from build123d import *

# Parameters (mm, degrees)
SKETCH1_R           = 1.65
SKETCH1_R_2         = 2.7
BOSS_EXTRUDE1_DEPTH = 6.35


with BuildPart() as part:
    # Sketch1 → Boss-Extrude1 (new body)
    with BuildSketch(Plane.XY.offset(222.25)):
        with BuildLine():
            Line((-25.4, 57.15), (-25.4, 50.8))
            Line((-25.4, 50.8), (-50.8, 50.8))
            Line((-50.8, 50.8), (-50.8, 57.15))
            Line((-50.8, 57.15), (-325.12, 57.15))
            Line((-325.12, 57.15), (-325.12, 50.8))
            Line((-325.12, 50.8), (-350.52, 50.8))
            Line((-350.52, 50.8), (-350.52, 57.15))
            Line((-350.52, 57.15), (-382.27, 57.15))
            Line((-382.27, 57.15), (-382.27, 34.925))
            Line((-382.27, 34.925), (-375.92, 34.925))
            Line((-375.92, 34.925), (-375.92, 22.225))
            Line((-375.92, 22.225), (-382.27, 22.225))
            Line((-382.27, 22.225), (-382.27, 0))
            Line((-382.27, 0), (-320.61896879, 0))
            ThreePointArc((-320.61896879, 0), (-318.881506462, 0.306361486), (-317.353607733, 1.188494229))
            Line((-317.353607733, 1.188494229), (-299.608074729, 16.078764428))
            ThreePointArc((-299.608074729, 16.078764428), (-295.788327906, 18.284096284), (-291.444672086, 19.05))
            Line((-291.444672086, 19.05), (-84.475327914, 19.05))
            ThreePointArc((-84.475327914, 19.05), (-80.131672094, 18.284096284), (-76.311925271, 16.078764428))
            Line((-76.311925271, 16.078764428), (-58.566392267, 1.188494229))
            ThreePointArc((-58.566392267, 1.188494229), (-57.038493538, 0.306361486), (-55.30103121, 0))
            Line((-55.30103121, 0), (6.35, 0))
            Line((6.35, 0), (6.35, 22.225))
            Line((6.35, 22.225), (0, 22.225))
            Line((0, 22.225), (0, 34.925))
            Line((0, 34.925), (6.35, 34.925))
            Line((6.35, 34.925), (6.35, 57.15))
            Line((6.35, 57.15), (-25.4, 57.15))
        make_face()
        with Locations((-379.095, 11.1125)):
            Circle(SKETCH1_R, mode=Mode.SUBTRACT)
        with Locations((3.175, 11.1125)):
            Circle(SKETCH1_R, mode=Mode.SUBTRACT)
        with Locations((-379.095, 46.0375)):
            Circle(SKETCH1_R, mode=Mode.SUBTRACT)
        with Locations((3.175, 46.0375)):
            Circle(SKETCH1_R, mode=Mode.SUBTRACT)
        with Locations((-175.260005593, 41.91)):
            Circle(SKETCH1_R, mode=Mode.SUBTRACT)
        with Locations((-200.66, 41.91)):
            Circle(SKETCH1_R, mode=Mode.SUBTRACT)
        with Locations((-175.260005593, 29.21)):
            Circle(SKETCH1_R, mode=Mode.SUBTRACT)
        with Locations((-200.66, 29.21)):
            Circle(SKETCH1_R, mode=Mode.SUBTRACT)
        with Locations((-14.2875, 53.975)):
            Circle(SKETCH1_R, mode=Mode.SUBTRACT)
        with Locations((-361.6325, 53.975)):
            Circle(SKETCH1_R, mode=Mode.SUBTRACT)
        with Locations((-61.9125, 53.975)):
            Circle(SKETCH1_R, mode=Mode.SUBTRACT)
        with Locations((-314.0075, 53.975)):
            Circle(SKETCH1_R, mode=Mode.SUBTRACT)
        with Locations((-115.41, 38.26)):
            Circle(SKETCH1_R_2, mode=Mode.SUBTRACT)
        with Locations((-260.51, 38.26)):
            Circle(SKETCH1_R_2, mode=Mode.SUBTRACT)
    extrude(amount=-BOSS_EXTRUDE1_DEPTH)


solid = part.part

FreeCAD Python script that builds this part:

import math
import FreeCAD as App
import Part
import Sketcher

V = App.Vector
Q = App.Units.Quantity

doc = App.newDocument("Part")
body = doc.addObject("PartDesign::Body", "Body")

sketch1 = body.newObject("Sketcher::SketchObject", "Sketch")
sketch1.AttachmentSupport = (doc.getObject("XY_Plane"), [""])
sketch1.MapMode = "FlatFace"
sketch1.AttachmentOffset = App.Placement(V(0, 0, 8.75 * 25.4), App.Rotation())
sketch1.addGeometry(Part.LineSegment(V(-25.4, 57.1, 0), V(-25.4, 50.8, 0)), False)
sketch1.addGeometry(Part.LineSegment(V(-25.4, 50.8, 0), V(-50.8, 50.8, 0)), False)
sketch1.addGeometry(Part.LineSegment(V(-50.8, 50.8, 0), V(-50.8, 57.1, 0)), False)
sketch1.addGeometry(Part.LineSegment(V(-50.8, 57.1, 0), V(-325.1, 57.1, 0)), False)
sketch1.addGeometry(Part.LineSegment(V(-325.1, 57.1, 0), V(-325.1, 50.8, 0)), False)
sketch1.addGeometry(Part.LineSegment(V(-325.1, 50.8, 0), V(-350.5, 50.8, 0)), False)
sketch1.addGeometry(Part.LineSegment(V(-350.5, 50.8, 0), V(-350.5, 57.1, 0)), False)
sketch1.addGeometry(Part.LineSegment(V(-350.5, 57.1, 0), V(-382.3, 57.1, 0)), False)
sketch1.addGeometry(Part.LineSegment(V(-382.3, 57.1, 0), V(-382.3, 34.9, 0)), False)
sketch1.addGeometry(Part.LineSegment(V(-382.3, 34.9, 0), V(-375.9, 34.9, 0)), False)
sketch1.addGeometry(Part.LineSegment(V(-375.9, 34.9, 0), V(-375.9, 22.2, 0)), False)
sketch1.addGeometry(Part.LineSegment(V(-375.9, 22.2, 0), V(-382.3, 22.2, 0)), False)
sketch1.addGeometry(Part.LineSegment(V(-382.3, 22.2, 0), V(-382.3, 0, 0)), False)
sketch1.addGeometry(Part.LineSegment(V(-382.3, 0, 0), V(-320.6, 0, 0)), False)
sketch1.addGeometry(Part.ArcOfCircle(Part.Circle(V(-320.6, 5.1, 0), V(0, 0, 1), 5.1), math.radians(-90), math.radians(-50)), False)
sketch1.addGeometry(Part.LineSegment(V(-317.4, 1.2, 0), V(-299.6, 16.1, 0)), False)
sketch1.addGeometry(Part.ArcOfCircle(Part.Circle(V(-291.4, 6.3, 0), V(0, 0, 1), 12.7), math.radians(90), math.radians(130)), False)
sketch1.addGeometry(Part.LineSegment(V(-291.4, 19.1, 0), V(-84.5, 19.1, 0)), False)
sketch1.addGeometry(Part.ArcOfCircle(Part.Circle(V(-84.5, 6.3, 0), V(0, 0, 1), 12.7), math.radians(50), math.radians(90)), False)
sketch1.addGeometry(Part.LineSegment(V(-76.3, 16.1, 0), V(-58.6, 1.2, 0)), False)
sketch1.addGeometry(Part.ArcOfCircle(Part.Circle(V(-55.3, 5.1, 0), V(0, 0, 1), 5.1), math.radians(-130), math.radians(-90)), False)
sketch1.addGeometry(Part.LineSegment(V(-55.3, 0, 0), V(6.3, 0, 0)), False)
sketch1.addGeometry(Part.LineSegment(V(6.3, 0, 0), V(6.3, 22.2, 0)), False)
sketch1.addGeometry(Part.LineSegment(V(6.3, 22.2, 0), V(0, 22.2, 0)), False)
sketch1.addGeometry(Part.LineSegment(V(0, 22.2, 0), V(0, 34.9, 0)), False)
sketch1.addGeometry(Part.LineSegment(V(0, 34.9, 0), V(6.3, 34.9, 0)), False)
sketch1.addGeometry(Part.LineSegment(V(6.3, 34.9, 0), V(6.3, 57.1, 0)), False)
sketch1.addGeometry(Part.LineSegment(V(6.3, 57.1, 0), V(-25.4, 57.1, 0)), False)
sketch1.addGeometry(Part.Circle(V(-379.1, 11.1, 0), V(0, 0, 1), 1.6), False)
sketch1.addGeometry(Part.Circle(V(-200.7, 29.2, 0), V(0, 0, 1), 1.6), False)
sketch1.addGeometry(Part.Circle(V(3.2, 11.1, 0), V(0, 0, 1), 1.6), False)
sketch1.addGeometry(Part.Circle(V(-175.3, 29.2, 0), V(0, 0, 1), 1.6), False)
sketch1.addGeometry(Part.Circle(V(-260.5, 38.3, 0), V(0, 0, 1), 2.7), False)
sketch1.addGeometry(Part.Circle(V(-200.7, 41.9, 0), V(0, 0, 1), 1.6), False)
sketch1.addGeometry(Part.Circle(V(-379.1, 46, 0), V(0, 0, 1), 1.6), False)
sketch1.addGeometry(Part.Circle(V(-361.6, 54, 0), V(0, 0, 1), 1.6), False)
sketch1.addGeometry(Part.Circle(V(-314, 54, 0), V(0, 0, 1), 1.6), False)
sketch1.addGeometry(Part.Circle(V(-115.4, 38.3, 0), V(0, 0, 1), 2.7), False)
sketch1.addGeometry(Part.Circle(V(-175.3, 41.9, 0), V(0, 0, 1), 1.6), False)
sketch1.addGeometry(Part.Circle(V(3.2, 46, 0), V(0, 0, 1), 1.6), False)
sketch1.addGeometry(Part.Circle(V(-61.9, 54, 0), V(0, 0, 1), 1.6), False)
sketch1.addGeometry(Part.Circle(V(-14.3, 54, 0), V(0, 0, 1), 1.6), False)
sketch1.addConstraint(Sketcher.Constraint("Coincident", 0, 2, 1, 1))
sketch1.addConstraint(Sketcher.Constraint("Coincident", 1, 2, 2, 1))
sketch1.addConstraint(Sketcher.Constraint("Coincident", 2, 2, 3, 1))
sketch1.addConstraint(Sketcher.Constraint("Coincident", 3, 2, 4, 1))
sketch1.addConstraint(Sketcher.Constraint("Coincident", 4, 2, 5, 1))
sketch1.addConstraint(Sketcher.Constraint("Coincident", 5, 2, 6, 1))
sketch1.addConstraint(Sketcher.Constraint("Coincident", 6, 2, 7, 1))
sketch1.addConstraint(Sketcher.Constraint("Coincident", 7, 2, 8, 1))
sketch1.addConstraint(Sketcher.Constraint("Coincident", 8, 2, 9, 1))
sketch1.addConstraint(Sketcher.Constraint("Coincident", 9, 2, 10, 1))
sketch1.addConstraint(Sketcher.Constraint("Coincident", 10, 2, 11, 1))
sketch1.addConstraint(Sketcher.Constraint("Coincident", 11, 2, 12, 1))
sketch1.addConstraint(Sketcher.Constraint("Coincident", 12, 2, 13, 1))
sketch1.addConstraint(Sketcher.Constraint("Tangent", 13, 2, 14, 1))
sketch1.addConstraint(Sketcher.Constraint("Tangent", 14, 2, 15, 1))
sketch1.addConstraint(Sketcher.Constraint("Tangent", 15, 2, 16, 2))
sketch1.addConstraint(Sketcher.Constraint("Tangent", 16, 1, 17, 1))
sketch1.addConstraint(Sketcher.Constraint("Tangent", 17, 2, 18, 2))
sketch1.addConstraint(Sketcher.Constraint("Tangent", 18, 1, 19, 1))
sketch1.addConstraint(Sketcher.Constraint("Tangent", 19, 2, 20, 1))
sketch1.addConstraint(Sketcher.Constraint("Tangent", 20, 2, 21, 1))
sketch1.addConstraint(Sketcher.Constraint("Coincident", 21, 2, 22, 1))
sketch1.addConstraint(Sketcher.Constraint("Coincident", 22, 2, 23, 1))
sketch1.addConstraint(Sketcher.Constraint("Coincident", 23, 2, 24, 1))
sketch1.addConstraint(Sketcher.Constraint("Coincident", 24, 2, 25, 1))
sketch1.addConstraint(Sketcher.Constraint("Coincident", 25, 2, 26, 1))
sketch1.addConstraint(Sketcher.Constraint("Coincident", 26, 2, 27, 1))
sketch1.addConstraint(Sketcher.Constraint("Coincident", 27, 2, 0, 1))
sketch1.addConstraint(Sketcher.Constraint("Vertical", 0))
sketch1.addConstraint(Sketcher.Constraint("Horizontal", 1))
sketch1.addConstraint(Sketcher.Constraint("Vertical", 2))
sketch1.addConstraint(Sketcher.Constraint("Horizontal", 3))
sketch1.addConstraint(Sketcher.Constraint("Vertical", 4))
sketch1.addConstraint(Sketcher.Constraint("Horizontal", 5))
sketch1.addConstraint(Sketcher.Constraint("Vertical", 6))
sketch1.addConstraint(Sketcher.Constraint("Horizontal", 7))
sketch1.addConstraint(Sketcher.Constraint("Vertical", 8))
sketch1.addConstraint(Sketcher.Constraint("Horizontal", 9))
sketch1.addConstraint(Sketcher.Constraint("Vertical", 10))
sketch1.addConstraint(Sketcher.Constraint("Horizontal", 11))
sketch1.addConstraint(Sketcher.Constraint("Vertical", 12))
sketch1.addConstraint(Sketcher.Constraint("Horizontal", 13))
sketch1.addConstraint(Sketcher.Constraint("Horizontal", 17))
sketch1.addConstraint(Sketcher.Constraint("Horizontal", 21))
sketch1.addConstraint(Sketcher.Constraint("Vertical", 22))
sketch1.addConstraint(Sketcher.Constraint("Horizontal", 23))
sketch1.addConstraint(Sketcher.Constraint("Vertical", 24))
sketch1.addConstraint(Sketcher.Constraint("Horizontal", 25))
sketch1.addConstraint(Sketcher.Constraint("Vertical", 26))
sketch1.addConstraint(Sketcher.Constraint("Horizontal", 27))
sketch1.addConstraint(Sketcher.Constraint("Equal", 16, 18))
sketch1.addConstraint(Sketcher.Constraint("Equal", 14, 20))
sketch1.addConstraint(Sketcher.Constraint("Equal", 28, 29))
sketch1.addConstraint(Sketcher.Constraint("Equal", 29, 30))
sketch1.addConstraint(Sketcher.Constraint("Equal", 30, 31))
sketch1.addConstraint(Sketcher.Constraint("Equal", 31, 33))
sketch1.addConstraint(Sketcher.Constraint("Equal", 33, 34))
sketch1.addConstraint(Sketcher.Constraint("Equal", 34, 35))
sketch1.addConstraint(Sketcher.Constraint("Equal", 35, 36))
sketch1.addConstraint(Sketcher.Constraint("Equal", 32, 37))
sketch1.addConstraint(Sketcher.Constraint("Equal", 36, 38))
sketch1.addConstraint(Sketcher.Constraint("Equal", 38, 39))
sketch1.addConstraint(Sketcher.Constraint("Equal", 39, 40))
sketch1.addConstraint(Sketcher.Constraint("Equal", 40, 41))
sketch1.addConstraint(Sketcher.Constraint("PointOnObject", 12, 2, -1))
sketch1.addConstraint(Sketcher.Constraint("PointOnObject", 20, 2, -1))
sketch1.addConstraint(Sketcher.Constraint("PointOnObject", 23, 2, -2))
sketch1.addConstraint(Sketcher.Constraint("Horizontal", 28, 3, 30, 3))
sketch1.addConstraint(Sketcher.Constraint("Horizontal", 29, 3, 31, 3))
sketch1.addConstraint(Sketcher.Constraint("Horizontal", 35, 3, 36, 3))
sketch1.addConstraint(Sketcher.Constraint("Horizontal", 32, 3, 37, 3))
sketch1.addConstraint(Sketcher.Constraint("Horizontal", 33, 3, 38, 3))
sketch1.addConstraint(Sketcher.Constraint("Horizontal", 34, 3, 39, 3))
sketch1.addConstraint(Sketcher.Constraint("Horizontal", 36, 3, 40, 3))
sketch1.addConstraint(Sketcher.Constraint("Horizontal", 40, 3, 41, 3))
sketch1.addConstraint(Sketcher.Constraint("Horizontal", 1, 2, 4, 2))
sketch1.addConstraint(Sketcher.Constraint("Horizontal", 3, 2, 6, 2))
sketch1.addConstraint(Sketcher.Constraint("Horizontal", 15, 2, 18, 1))
sketch1.addConstraint(Sketcher.Constraint("Horizontal", 11, 2, 22, 2))
sketch1.addConstraint(Sketcher.Constraint("Horizontal", 9, 2, 24, 2))
sketch1.addConstraint(Sketcher.Constraint("Horizontal", 7, 2, 26, 2))
sketch1.addConstraint(Sketcher.Constraint("Vertical", 29, 3, 33, 3))
sketch1.addConstraint(Sketcher.Constraint("Vertical", 28, 3, 34, 3))
sketch1.addConstraint(Sketcher.Constraint("Vertical", 31, 3, 38, 3))
sketch1.addConstraint(Sketcher.Constraint("Vertical", 30, 3, 39, 3))
sketch1.addConstraint(Sketcher.Constraint("Vertical", 8, 2, 11, 2))
sketch1.addConstraint(Sketcher.Constraint("Vertical", 22, 2, 25, 2))
sketch1.addConstraint(Sketcher.Constraint("Equal", 1, 5))
sketch1.addConstraint(Sketcher.Constraint("Equal", 13, 21))
sketch1.addConstraint(Sketcher.Constraint("Equal", 11, 23))
sketch1.addConstraint(Sketcher.Constraint("Equal", 7, 27))
sketch1.addConstraint(Sketcher.Constraint("Equal", 25, 0))
sketch1.addConstraint(Sketcher.Constraint("Equal", 8, 12))
sketch1.addConstraint(Sketcher.Constraint("Radius", 14, Q("0.2 in")))
sketch1.addConstraint(Sketcher.Constraint("Radius", 16, Q("0.5 in")))
sketch1.addConstraint(Sketcher.Constraint("DistanceX", 1, 2, 1, 1, Q("1 in")))
sketch1.addConstraint(Sketcher.Constraint("DistanceX", 3, 2, 3, 1, Q("10.8 in")))
sketch1.addConstraint(Sketcher.Constraint("DistanceY", 10, 2, 10, 1, Q("0.5 in")))
sketch1.addConstraint(Sketcher.Constraint("DistanceX", 0, 2, -1, 1, Q("1 in")))
sketch1.addConstraint(Sketcher.Constraint("DistanceY", -1, 1, 0, 2, Q("2 in")))
sketch1.addConstraint(Sketcher.Constraint("Angle", 15, Q("40 deg")))
sketch1.addConstraint(Sketcher.Constraint("DistanceY", 16, 3, 3, 2, Q("2 in")))
sketch1.addConstraint(Sketcher.Constraint("DistanceX", 7, 2, 7, 1, Q("1.25 in")))
sketch1.addConstraint(Sketcher.Constraint("DistanceX", 29, 3, -1, 1, Q("7.9 in")))
sketch1.addConstraint(Sketcher.Constraint("DistanceY", 16, 3, 29, 3, Q("0.9 in")))
sketch1.addConstraint(Sketcher.Constraint("DistanceY", 29, 3, 33, 3, Q("0.5 in")))
sketch1.addConstraint(Sketcher.Constraint("Diameter", 28, Q("3.3 mm")))
sketch1.addConstraint(Sketcher.Constraint("Diameter", 32, Q("5.4 mm")))
sketch1.addConstraint(Sketcher.Constraint("DistanceY", 8, 2, 35, 3, Q("0.75 in")))
sketch1.addConstraint(Sketcher.Constraint("DistanceX", 28, 3, -1, 1, Q("14.925 in")))
sketch1.addConstraint(Sketcher.Constraint("DistanceY", -1, 1, 28, 3, Q("0.4375 in")))
sketch1.addConstraint(Sketcher.Constraint("DistanceX", -1, 1, 30, 3, Q("0.125 in")))
sketch1.addConstraint(Sketcher.Constraint("DistanceY", -1, 1, 34, 3, Q("1.8125 in")))
sketch1.addConstraint(Sketcher.Constraint("DistanceX", 40, 3, -1, 1, Q("2.4375 in")))
sketch1.addConstraint(Sketcher.Constraint("DistanceX", 41, 3, -1, 1, Q("0.5625 in")))
sketch1.addConstraint(Sketcher.Constraint("DistanceX", 34, 3, 35, 3, Q("0.6875 in")))
sketch1.addConstraint(Sketcher.Constraint("DistanceX", 35, 3, 36, 3, Q("1.875 in")))
sketch1.addConstraint(Sketcher.Constraint("DistanceX", 31, 3, 18, 3, Q("3.5741999 in")))
sketch1.addConstraint(Sketcher.Constraint("DistanceX", 13, 1, 13, 2, Q("61.651031 mm")))
sketch1.addConstraint(Sketcher.Constraint("DistanceX", 32, 3, -1, 1, Q("260.51 mm")))
sketch1.addConstraint(Sketcher.Constraint("DistanceY", -1, 1, 32, 3, Q("38.26 mm")))
sketch1.addConstraint(Sketcher.Constraint("DistanceX", 37, 3, -1, 1, Q("115.41 mm")))
pad1 = body.newObject("PartDesign::Pad", "Pad")
pad1.Profile = sketch1
pad1.Length = Q("0.25 in")
pad1.Reversed = True

doc.recompute()
